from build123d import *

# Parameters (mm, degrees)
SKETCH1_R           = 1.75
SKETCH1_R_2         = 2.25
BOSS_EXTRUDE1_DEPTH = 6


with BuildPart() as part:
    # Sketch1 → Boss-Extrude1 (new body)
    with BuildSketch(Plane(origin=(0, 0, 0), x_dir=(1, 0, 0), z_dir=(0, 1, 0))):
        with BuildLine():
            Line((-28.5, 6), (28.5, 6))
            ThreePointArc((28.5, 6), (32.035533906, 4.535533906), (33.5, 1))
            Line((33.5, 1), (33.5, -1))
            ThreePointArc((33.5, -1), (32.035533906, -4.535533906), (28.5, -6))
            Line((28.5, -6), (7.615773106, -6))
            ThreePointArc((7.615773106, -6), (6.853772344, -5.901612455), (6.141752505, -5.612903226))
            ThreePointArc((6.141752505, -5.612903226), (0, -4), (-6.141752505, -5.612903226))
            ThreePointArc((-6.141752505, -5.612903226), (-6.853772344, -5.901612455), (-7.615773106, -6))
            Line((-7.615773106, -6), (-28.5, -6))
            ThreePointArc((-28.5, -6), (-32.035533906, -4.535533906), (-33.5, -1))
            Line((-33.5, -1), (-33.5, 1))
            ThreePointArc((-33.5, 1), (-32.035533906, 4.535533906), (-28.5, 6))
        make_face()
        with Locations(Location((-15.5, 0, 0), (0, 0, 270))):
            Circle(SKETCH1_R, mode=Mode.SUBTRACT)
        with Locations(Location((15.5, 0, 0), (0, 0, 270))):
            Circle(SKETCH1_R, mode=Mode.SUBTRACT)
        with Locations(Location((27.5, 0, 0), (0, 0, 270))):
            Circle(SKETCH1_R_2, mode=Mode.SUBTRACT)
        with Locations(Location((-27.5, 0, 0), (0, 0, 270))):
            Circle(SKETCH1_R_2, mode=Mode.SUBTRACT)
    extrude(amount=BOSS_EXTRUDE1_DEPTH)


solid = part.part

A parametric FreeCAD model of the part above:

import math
import FreeCAD as App
import Part
import Sketcher
from FreeCAD import Vector
Q = App.Units.Quantity

doc = App.newDocument("Part")
body = doc.addObject("PartDesign::Body", "Body")

# Sketch on XZ plane
sketch1 = doc.addObject("Sketcher::SketchObject", "Sketch")
body.addObject(sketch1)
sketch1.AttachmentSupport = (doc.XZ_Plane, [""])
sketch1.MapMode = "FlatFace"
sketch1.addGeometry(Part.LineSegment(Vector(28.5, -6, 0), Vector(-28.5, -6, 0)), False)
sketch1.addGeometry(Part.ArcOfCircle(Part.Circle(Vector(-28.5, -1, 0), Vector(0, 0, 1), 5), math.radians(180), math.radians(270)), False)
sketch1.addGeometry(Part.LineSegment(Vector(-33.5, -1, 0), Vector(-33.5, 1, 0)), False)
sketch1.addGeometry(Part.ArcOfCircle(Part.Circle(Vector(-28.5, 1, 0), Vector(0, 0, 1), 5), math.radians(90), math.radians(180)), False)
sketch1.addGeometry(Part.LineSegment(Vector(-28.5, 6, 0), Vector(-7.6, 6, 0)), False)
sketch1.addGeometry(Part.ArcOfCircle(Part.Circle(Vector(-7.6, 3, 0), Vector(0, 0, 1), 3), math.radians(61), math.radians(90)), False)
sketch1.addGeometry(Part.ArcOfCircle(Part.Circle(Vector(0, 16.5, 0), Vector(0, 0, 1), 12.5), math.radians(-119), math.radians(-61)), False)
sketch1.addGeometry(Part.ArcOfCircle(Part.Circle(Vector(7.6, 3, 0), Vector(0, 0, 1), 3), math.radians(90), math.radians(119)), False)
sketch1.addGeometry(Part.LineSegment(Vector(7.6, 6, 0), Vector(28.5, 6, 0)), False)
sketch1.addGeometry(Part.ArcOfCircle(Part.Circle(Vector(28.5, 1, 0), Vector(0, 0, 1), 5), math.radians(0), math.radians(90)), False)
sketch1.addGeometry(Part.LineSegment(Vector(33.5, 1, 0), Vector(33.5, -1, 0)), False)
sketch1.addGeometry(Part.ArcOfCircle(Part.Circle(Vector(28.5, -1, 0), Vector(0, 0, 1), 5), math.radians(-90), math.radians(0)), False)
sketch1.addGeometry(Part.Circle(Vector(27.5, 0, 0), Vector(0, 0, 1), 2.2), False)
sketch1.addGeometry(Part.Circle(Vector(15.5, 0, 0), Vector(0, 0, 1), 1.8), False)
sketch1.addGeometry(Part.Circle(Vector(-15.5, 0, 0), Vector(0, 0, 1), 1.8), False)
sketch1.addGeometry(Part.Circle(Vector(-27.5, 0, 0), Vector(0, 0, 1), 2.2), False)
sketch1.addConstraint(Sketcher.Constraint("Tangent", 0, 2, 1, 2))
sketch1.addConstraint(Sketcher.Constraint("Tangent", 1, 1, 2, 1))
sketch1.addConstraint(Sketcher.Constraint("Tangent", 2, 2, 3, 2))
sketch1.addConstraint(Sketcher.Constraint("Tangent", 3, 1, 4, 1))
sketch1.addConstraint(Sketcher.Constraint("Tangent", 4, 2, 5, 2))
sketch1.addConstraint(Sketcher.Constraint("Tangent", 5, 1, 6, 1))
sketch1.addConstraint(Sketcher.Constraint("Tangent", 6, 2, 7, 2))
sketch1.addConstraint(Sketcher.Constraint("Tangent", 7, 1, 8, 1))
sketch1.addConstraint(Sketcher.Constraint("Tangent", 8, 2, 9, 2))
sketch1.addConstraint(Sketcher.Constraint("Tangent", 9, 1, 10, 1))
sketch1.addConstraint(Sketcher.Constraint("Tangent", 10, 2, 11, 2))
sketch1.addConstraint(Sketcher.Constraint("Tangent", 11, 1, 0, 1))
sketch1.addConstraint(Sketcher.Constraint("Horizontal", 0))
sketch1.addConstraint(Sketcher.Constraint("Vertical", 2))
sketch1.addConstraint(Sketcher.Constraint("Horizontal", 4))
sketch1.addConstraint(Sketcher.Constraint("Horizontal", 8))
sketch1.addConstraint(Sketcher.Constraint("Vertical", 10))
sketch1.addConstraint(Sketcher.Constraint("Equal", 1, 3))
sketch1.addConstraint(Sketcher.Constraint("Equal", 5, 7))
sketch1.addConstraint(Sketcher.Constraint("Equal", 3, 9))
sketch1.addConstraint(Sketcher.Constraint("Equal", 9, 11))
sketch1.addConstraint(Sketcher.Constraint("Equal", 13, 14))
sketch1.addConstraint(Sketcher.Constraint("Equal", 12, 15))
sketch1.addConstraint(Sketcher.Constraint("Symmetric", 1, 3, 9, 3, -1, 1))
sketch1.addConstraint(Sketcher.Constraint("Symmetric", 13, 3, 14, 3, -1, 1))
sketch1.addConstraint(Sketcher.Constraint("Symmetric", 12, 3, 15, 3, -1, 1))
sketch1.addConstraint(Sketcher.Constraint("Symmetric", 5, 3, 7, 3, -2))
sketch1.addConstraint(Sketcher.Constraint("PointOnObject", 12, 3, -1))
sketch1.addConstraint(Sketcher.Constraint("PointOnObject", 13, 3, -1))
sketch1.addConstraint(Sketcher.Constraint("Radius", 1, Q("5 mm")))
sketch1.addConstraint(Sketcher.Constraint("Radius", 5, Q("3 mm")))
sketch1.addConstraint(Sketcher.Constraint("Diameter", 12, Q("4.5 mm")))
sketch1.addConstraint(Sketcher.Constraint("Diameter", 13, Q("3.5 mm")))
sketch1.addConstraint(Sketcher.Constraint("Radius", 6, Q("12.5 mm")))
sketch1.addConstraint(Sketcher.Constraint("DistanceX", 0, 2, 0, 1, Q("57 mm")))
sketch1.addConstraint(Sketcher.Constraint("DistanceY", 2, 1, 2, 2, Q("2 mm")))
sketch1.addConstraint(Sketcher.Constraint("DistanceX", 12, 3, 9, 3, Q("1 mm")))
sketch1.addConstraint(Sketcher.Constraint("DistanceX", 13, 3, 12, 3, Q("12 mm")))
sketch1.addConstraint(Sketcher.Constraint("DistanceY", -1, 1, 6, 3, Q("16.5 mm")))
pad1 = doc.addObject("PartDesign::Pad", "Pad")
body.addObject(pad1)
pad1.Profile = sketch1
pad1.Length = 6
pad1.Reversed = True

doc.recompute()
